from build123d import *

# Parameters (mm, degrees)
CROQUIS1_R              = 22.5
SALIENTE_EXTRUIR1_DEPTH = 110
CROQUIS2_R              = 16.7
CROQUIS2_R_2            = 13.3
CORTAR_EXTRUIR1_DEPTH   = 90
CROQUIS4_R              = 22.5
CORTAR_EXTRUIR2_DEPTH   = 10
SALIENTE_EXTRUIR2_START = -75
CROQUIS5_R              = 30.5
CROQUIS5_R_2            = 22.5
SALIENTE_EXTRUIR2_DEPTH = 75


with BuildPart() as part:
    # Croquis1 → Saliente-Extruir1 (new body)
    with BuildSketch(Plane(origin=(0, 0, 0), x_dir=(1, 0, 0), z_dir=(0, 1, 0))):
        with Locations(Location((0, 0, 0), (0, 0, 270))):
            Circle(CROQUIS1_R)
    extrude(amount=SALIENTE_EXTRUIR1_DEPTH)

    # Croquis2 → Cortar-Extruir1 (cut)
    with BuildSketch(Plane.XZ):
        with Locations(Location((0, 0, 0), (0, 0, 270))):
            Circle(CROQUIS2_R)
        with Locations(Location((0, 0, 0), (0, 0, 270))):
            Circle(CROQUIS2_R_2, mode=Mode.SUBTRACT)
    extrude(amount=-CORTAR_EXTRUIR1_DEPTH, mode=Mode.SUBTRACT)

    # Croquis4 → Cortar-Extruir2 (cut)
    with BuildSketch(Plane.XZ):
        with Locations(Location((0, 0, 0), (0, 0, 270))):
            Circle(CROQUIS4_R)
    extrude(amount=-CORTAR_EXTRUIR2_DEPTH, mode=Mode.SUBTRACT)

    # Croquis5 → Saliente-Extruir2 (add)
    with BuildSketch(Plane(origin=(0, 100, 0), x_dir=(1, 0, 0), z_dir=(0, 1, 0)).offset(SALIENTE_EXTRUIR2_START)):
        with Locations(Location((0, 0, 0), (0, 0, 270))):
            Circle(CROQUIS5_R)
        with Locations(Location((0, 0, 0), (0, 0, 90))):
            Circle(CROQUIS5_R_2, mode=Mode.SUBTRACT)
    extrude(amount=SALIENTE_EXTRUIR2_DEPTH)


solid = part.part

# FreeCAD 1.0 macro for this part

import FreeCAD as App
import Part
import Sketcher

V = App.Vector

doc = App.newDocument("Part")
params = doc.addObject("Spreadsheet::Sheet", "Params")
for row, (alias, value) in enumerate([
    ("sketch1_diameter", "45 mm"),
    ("pad1_length", "110 mm"),
    ("sketch2_diameter", "33.4 mm"),
    ("sketch2_diameter2", "26.6 mm"),
    ("pocket1_length", "90 mm"),
    ("sketch3_diameter", "45 mm"),
    ("pocket2_length", "10 mm"),
    ("sketch4_diameter", "61 mm"),
    ("sketch4_diameter2", "45 mm"),
    ("pad2_length", "75 mm"),
], start=1):
    params.set(f"A{row}", alias)
    params.set(f"B{row}", "=" + value)
    params.setAlias(f"B{row}", alias)

body = doc.addObject("PartDesign::Body", "Body")

# Sketch on XZ plane
sketch1 = doc.addObject("Sketcher::SketchObject", "Sketch")
body.addObject(sketch1)
sketch1.AttachmentSupport = (doc.XZ_Plane, [""])
sketch1.MapMode = "FlatFace"
sketch1.addGeometry(Part.Circle(V(0, 0, 0), V(0, 0, 1), 22), False)
sketch1.addConstraint([
    Sketcher.Constraint("Coincident", 0, 3, -1, 1),
    Sketcher.Constraint("Diameter", 0, 45.0),
])
sketch1.setExpression("Constraints[1]", "Params.sketch1_diameter")
pad1 = doc.addObject("PartDesign::Pad", "Pad")
body.addObject(pad1)
pad1.Profile = sketch1
pad1.setExpression("Length", "Params.pad1_length")
pad1.Reversed = True

# Sketch on XZ plane
sketch2 = doc.addObject("Sketcher::SketchObject", "Sketch001")
body.addObject(sketch2)
sketch2.AttachmentSupport = (doc.XZ_Plane, [""])
sketch2.MapMode = "FlatFace"
sketch2.addGeometry([
    Part.Circle(V(0, 0, 0), V(0, 0, 1), 17),
    Part.Circle(V(0, 0, 0), V(0, 0, 1), 13),
], False)
sketch2.addConstraint([
    Sketcher.Constraint("Coincident", 0, 3, -1, 1),
    Sketcher.Constraint("Coincident", 1, 3, -1, 1),
    Sketcher.Constraint("Diameter", 0, 33.4),
    Sketcher.Constraint("Diameter", 1, 26.6),
])
sketch2.setExpression("Constraints[2]", "Params.sketch2_diameter")
sketch2.setExpression("Constraints[3]", "Params.sketch2_diameter2")
pocket1 = doc.addObject("PartDesign::Pocket", "Pocket")
body.addObject(pocket1)
pocket1.Profile = sketch2
pocket1.setExpression("Length", "Params.pocket1_length")

# Sketch on XZ plane
sketch3 = doc.addObject("Sketcher::SketchObject", "Sketch002")
body.addObject(sketch3)
sketch3.AttachmentSupport = (doc.XZ_Plane, [""])
sketch3.MapMode = "FlatFace"
sketch3.addGeometry(Part.Circle(V(0, 0, 0), V(0, 0, 1), 22), False)
sketch3.addConstraint([
    Sketcher.Constraint("Coincident", 0, 3, -1, 1),
    Sketcher.Constraint("Diameter", 0, 45.0),
])
sketch3.setExpression("Constraints[1]", "Params.sketch3_diameter")
pocket2 = doc.addObject("PartDesign::Pocket", "Pocket001")
body.addObject(pocket2)
pocket2.Profile = sketch3
pocket2.setExpression("Length", "Params.pocket2_length")

# Sketch on XZ plane
sketch4 = doc.addObject("Sketcher::SketchObject", "Sketch003")
body.addObject(sketch4)
sketch4.AttachmentSupport = (doc.XZ_Plane, [""])
sketch4.MapMode = "FlatFace"
sketch4.AttachmentOffset = App.Placement(V(0, 0, -25), App.Rotation())
sketch4.addGeometry([
    Part.Circle(V(0, 0, 0), V(0, 0, 1), 30),
    Part.Circle(V(0, 0, 0), V(0, 0, 1), 22),
], False)
sketch4.addConstraint([
    Sketcher.Constraint("Coincident", 0, 3, -1, 1),
    Sketcher.Constraint("Coincident", 1, 3, -1, 1),
    Sketcher.Constraint("Diameter", 0, 61.0),
    Sketcher.Constraint("Diameter", 1, 45.0),
])
sketch4.setExpression("Constraints[2]", "Params.sketch4_diameter")
sketch4.setExpression("Constraints[3]", "Params.sketch4_diameter2")
pad2 = doc.addObject("PartDesign::Pad", "Pad001")
body.addObject(pad2)
pad2.Profile = sketch4
pad2.setExpression("Length", "Params.pad2_length")
pad2.Reversed = True

doc.recompute()
